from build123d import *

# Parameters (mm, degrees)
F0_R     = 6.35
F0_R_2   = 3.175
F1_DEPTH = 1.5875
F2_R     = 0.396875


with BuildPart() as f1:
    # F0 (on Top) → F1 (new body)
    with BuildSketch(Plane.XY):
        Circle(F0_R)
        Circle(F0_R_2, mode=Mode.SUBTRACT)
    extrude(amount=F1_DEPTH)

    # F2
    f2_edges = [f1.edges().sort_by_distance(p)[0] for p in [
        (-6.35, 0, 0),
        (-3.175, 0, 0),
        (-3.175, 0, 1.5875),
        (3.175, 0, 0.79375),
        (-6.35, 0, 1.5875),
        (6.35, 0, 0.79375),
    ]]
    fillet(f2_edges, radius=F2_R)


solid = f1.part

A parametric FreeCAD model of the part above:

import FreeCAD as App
import Part
import Sketcher
from FreeCAD import Vector
Q = App.Units.Quantity

doc = App.newDocument("Part")
body = doc.addObject("PartDesign::Body", "Body")

sketch1 = body.newObject("Sketcher::SketchObject", "Sketch")
sketch1.AttachmentSupport = (doc.getObject("XY_Plane"), [""])
sketch1.MapMode = "FlatFace"
sketch1.addGeometry([
    Part.Circle(Vector(0, 0, 0), Vector(0, 0, 1), 6.35),
    Part.Circle(Vector(0, 0, 0), Vector(0, 0, 1), 3.175),
], False)
sketch1.addConstraint([
    Sketcher.Constraint("Coincident", 0, 3, -1, 1),
    Sketcher.Constraint("Coincident", 1, 3, -1, 1),
    Sketcher.Constraint("Diameter", 0, Q("0.5 in")),
    Sketcher.Constraint("Diameter", 1, Q("0.25 in")),
])
pad1 = body.newObject("PartDesign::Pad", "Pad")
pad1.Profile = sketch1
pad1.Length = Q("0.0625 in")
doc.recompute()

fillet = body.newObject("PartDesign::Fillet", "Fillet")
fillet.Base = (pad1, ["Edge1"])
fillet.UseAllEdges = True
fillet.Radius = Q("0.015625 in")

doc.recompute()
